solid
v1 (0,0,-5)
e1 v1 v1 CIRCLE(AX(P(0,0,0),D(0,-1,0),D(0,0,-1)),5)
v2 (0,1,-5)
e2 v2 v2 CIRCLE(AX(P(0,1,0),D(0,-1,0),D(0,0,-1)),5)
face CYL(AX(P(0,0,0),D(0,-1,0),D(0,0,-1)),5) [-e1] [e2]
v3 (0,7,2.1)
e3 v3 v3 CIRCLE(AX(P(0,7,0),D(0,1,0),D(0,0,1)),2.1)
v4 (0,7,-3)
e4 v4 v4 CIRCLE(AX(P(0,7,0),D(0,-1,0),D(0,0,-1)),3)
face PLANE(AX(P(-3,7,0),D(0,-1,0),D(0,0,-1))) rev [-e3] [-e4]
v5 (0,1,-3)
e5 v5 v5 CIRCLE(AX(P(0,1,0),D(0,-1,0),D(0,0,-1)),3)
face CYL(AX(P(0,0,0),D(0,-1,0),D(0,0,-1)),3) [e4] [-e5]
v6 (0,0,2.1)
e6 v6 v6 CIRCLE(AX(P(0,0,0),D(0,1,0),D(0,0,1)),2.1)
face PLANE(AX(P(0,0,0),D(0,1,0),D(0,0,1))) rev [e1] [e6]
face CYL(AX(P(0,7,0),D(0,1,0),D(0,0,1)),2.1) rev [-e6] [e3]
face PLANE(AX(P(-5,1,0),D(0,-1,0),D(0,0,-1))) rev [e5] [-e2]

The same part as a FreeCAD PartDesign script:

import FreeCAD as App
import Part
import Sketcher
Q = App.Units.Quantity

doc = App.newDocument("Part")
body = doc.addObject("PartDesign::Body", "Body")

sketch1 = body.newObject("Sketcher::SketchObject", "Sketch")
sketch1.AttachmentSupport = (doc.getObject("XY_Plane"), [""])
sketch1.MapMode = "FlatFace"
sketch1.addGeometry(Part.LineSegment(App.Vector(-5, 0, 0), App.Vector(0, 0, 0)), False)
sketch1.addGeometry(Part.LineSegment(App.Vector(0, 0, 0), App.Vector(0, 7, 0)), False)
sketch1.addGeometry(Part.LineSegment(App.Vector(0, 7, 0), App.Vector(-3, 7, 0)), False)
sketch1.addGeometry(Part.LineSegment(App.Vector(-3, 7, 0), App.Vector(-3, 1, 0)), False)
sketch1.addGeometry(Part.LineSegment(App.Vector(-3, 1, 0), App.Vector(-5, 1, 0)), False)
sketch1.addGeometry(Part.LineSegment(App.Vector(-5, 1, 0), App.Vector(-5, 0, 0)), False)
sketch1.addConstraint(Sketcher.Constraint("Coincident", 0, 2, 1, 1))
sketch1.addConstraint(Sketcher.Constraint("Coincident", 1, 2, 2, 1))
sketch1.addConstraint(Sketcher.Constraint("Coincident", 2, 2, 3, 1))
sketch1.addConstraint(Sketcher.Constraint("Coincident", 3, 2, 4, 1))
sketch1.addConstraint(Sketcher.Constraint("Coincident", 4, 2, 5, 1))
sketch1.addConstraint(Sketcher.Constraint("Coincident", 5, 2, 0, 1))
sketch1.addConstraint(Sketcher.Constraint("Horizontal", 0))
sketch1.addConstraint(Sketcher.Constraint("Vertical", 1))
sketch1.addConstraint(Sketcher.Constraint("Horizontal", 2))
sketch1.addConstraint(Sketcher.Constraint("Vertical", 3))
sketch1.addConstraint(Sketcher.Constraint("Horizontal", 4))
sketch1.addConstraint(Sketcher.Constraint("Vertical", 5))
sketch1.addConstraint(Sketcher.Constraint("Coincident", 0, 2, -1, 1))
sketch1.addConstraint(Sketcher.Constraint("DistanceX", 0, 1, 0, 2, Q("5 mm")))
sketch1.addConstraint(Sketcher.Constraint("DistanceX", 2, 2, 2, 1, Q("3 mm")))
sketch1.addConstraint(Sketcher.Constraint("DistanceY", 1, 1, 1, 2, Q("7 mm")))
sketch1.addConstraint(Sketcher.Constraint("DistanceY", 3, 2, 3, 1, Q("6 mm")))
revolution = body.newObject("PartDesign::Revolution", "Revolution")
revolution.Profile = sketch1
revolution.ReferenceAxis = (sketch1, ["V_Axis"])
revolution.Angle = 360

sketch2 = body.newObject("Sketcher::SketchObject", "Sketch001")
sketch2.AttachmentSupport = (doc.getObject("XZ_Plane"), [""])
sketch2.MapMode = "FlatFace"
sketch2.AttachmentOffset = App.Placement(App.Vector(0, 0, -7), App.Rotation())
sketch2.addGeometry(Part.Circle(App.Vector(0, 0, 0), App.Vector(0, 0, 1), 2.1), False)
sketch2.addConstraint(Sketcher.Constraint("Coincident", 0, 3, -1, 1))
sketch2.addConstraint(Sketcher.Constraint("Diameter", 0, Q("4.2 mm")))
doc.recompute()
hole = body.newObject("PartDesign::Hole", "Hole")
hole.Profile = sketch2
hole.ThreadType = "None"
hole.Diameter = 4.2
hole.DepthType = "ThroughAll"
hole.Reversed = True

doc.recompute()
